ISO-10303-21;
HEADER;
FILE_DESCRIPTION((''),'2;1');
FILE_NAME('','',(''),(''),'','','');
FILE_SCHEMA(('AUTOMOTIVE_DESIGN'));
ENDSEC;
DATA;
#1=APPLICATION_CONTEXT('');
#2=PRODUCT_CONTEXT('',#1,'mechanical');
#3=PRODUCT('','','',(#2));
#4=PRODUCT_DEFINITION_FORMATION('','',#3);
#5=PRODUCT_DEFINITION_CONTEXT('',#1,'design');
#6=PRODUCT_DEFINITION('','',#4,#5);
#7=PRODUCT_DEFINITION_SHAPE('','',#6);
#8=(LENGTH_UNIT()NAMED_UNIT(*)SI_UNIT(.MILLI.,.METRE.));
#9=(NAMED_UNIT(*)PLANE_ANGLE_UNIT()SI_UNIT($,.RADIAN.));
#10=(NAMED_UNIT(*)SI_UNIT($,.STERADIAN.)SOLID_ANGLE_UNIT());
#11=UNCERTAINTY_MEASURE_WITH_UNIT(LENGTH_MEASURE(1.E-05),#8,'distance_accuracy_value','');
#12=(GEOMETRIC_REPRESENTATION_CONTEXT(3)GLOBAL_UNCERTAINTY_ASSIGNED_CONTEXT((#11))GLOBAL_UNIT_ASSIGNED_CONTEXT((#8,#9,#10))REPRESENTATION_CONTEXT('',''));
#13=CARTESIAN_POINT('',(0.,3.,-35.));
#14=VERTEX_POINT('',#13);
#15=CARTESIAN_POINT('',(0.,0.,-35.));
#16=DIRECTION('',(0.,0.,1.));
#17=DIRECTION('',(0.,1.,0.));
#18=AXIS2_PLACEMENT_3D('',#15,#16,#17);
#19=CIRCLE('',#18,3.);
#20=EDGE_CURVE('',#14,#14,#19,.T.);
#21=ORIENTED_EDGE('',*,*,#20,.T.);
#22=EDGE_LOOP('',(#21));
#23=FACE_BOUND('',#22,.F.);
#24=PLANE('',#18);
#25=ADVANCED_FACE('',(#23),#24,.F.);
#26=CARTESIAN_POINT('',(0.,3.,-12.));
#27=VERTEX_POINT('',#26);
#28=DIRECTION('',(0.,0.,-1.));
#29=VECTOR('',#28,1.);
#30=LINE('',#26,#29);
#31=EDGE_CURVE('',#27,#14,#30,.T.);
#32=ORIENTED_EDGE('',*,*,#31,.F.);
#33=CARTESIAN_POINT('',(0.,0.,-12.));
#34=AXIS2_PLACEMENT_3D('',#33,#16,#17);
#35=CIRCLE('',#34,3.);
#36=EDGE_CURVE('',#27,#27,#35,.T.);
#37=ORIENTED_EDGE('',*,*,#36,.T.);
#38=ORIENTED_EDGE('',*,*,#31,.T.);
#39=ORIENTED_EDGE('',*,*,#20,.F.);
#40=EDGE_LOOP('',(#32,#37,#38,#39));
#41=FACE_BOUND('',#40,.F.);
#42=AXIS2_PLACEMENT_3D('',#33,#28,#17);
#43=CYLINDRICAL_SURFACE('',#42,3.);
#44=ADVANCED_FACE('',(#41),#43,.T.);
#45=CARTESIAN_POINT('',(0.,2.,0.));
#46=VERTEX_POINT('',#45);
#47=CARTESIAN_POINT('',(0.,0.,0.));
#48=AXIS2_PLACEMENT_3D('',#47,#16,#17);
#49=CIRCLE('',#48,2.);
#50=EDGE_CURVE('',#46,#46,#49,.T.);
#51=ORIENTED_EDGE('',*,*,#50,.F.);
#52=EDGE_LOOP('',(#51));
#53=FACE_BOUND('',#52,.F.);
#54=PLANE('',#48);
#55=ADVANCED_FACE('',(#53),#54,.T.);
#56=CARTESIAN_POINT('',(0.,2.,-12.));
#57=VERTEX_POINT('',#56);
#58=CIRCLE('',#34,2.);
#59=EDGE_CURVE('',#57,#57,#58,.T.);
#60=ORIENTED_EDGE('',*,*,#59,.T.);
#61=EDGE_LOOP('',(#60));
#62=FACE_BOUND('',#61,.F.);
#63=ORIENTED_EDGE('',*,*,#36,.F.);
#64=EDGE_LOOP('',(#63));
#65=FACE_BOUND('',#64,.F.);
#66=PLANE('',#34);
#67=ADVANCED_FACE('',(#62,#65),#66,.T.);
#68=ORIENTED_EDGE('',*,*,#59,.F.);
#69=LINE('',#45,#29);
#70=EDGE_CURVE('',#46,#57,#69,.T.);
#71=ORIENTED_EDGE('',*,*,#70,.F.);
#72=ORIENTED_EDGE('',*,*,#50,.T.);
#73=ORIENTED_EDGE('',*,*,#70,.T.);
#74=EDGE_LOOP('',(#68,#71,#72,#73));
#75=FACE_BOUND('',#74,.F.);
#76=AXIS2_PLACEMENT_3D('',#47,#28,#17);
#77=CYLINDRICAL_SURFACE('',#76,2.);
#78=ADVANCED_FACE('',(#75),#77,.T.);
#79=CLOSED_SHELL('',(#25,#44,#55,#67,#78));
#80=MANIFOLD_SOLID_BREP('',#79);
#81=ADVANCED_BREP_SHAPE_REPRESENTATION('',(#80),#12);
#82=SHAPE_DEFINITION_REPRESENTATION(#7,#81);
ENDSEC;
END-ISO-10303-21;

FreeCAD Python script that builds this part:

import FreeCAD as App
import Part
import Sketcher

V = App.Vector

doc = App.newDocument("Part")
params = doc.addObject("Spreadsheet::Sheet", "Params")
for row, (alias, value) in enumerate([
    ("sketch1_width", "2 mm"),
    ("sketch1_width2", "1 mm"),
    ("sketch1_height", "23 mm"),
    ("sketch1_height2", "12 mm"),
    ("revolution_angle", "360 deg"),
], start=1):
    params.set(f"A{row}", alias)
    params.set(f"B{row}", "=" + value)
    params.setAlias(f"B{row}", alias)

body = doc.addObject("PartDesign::Body", "Body")

# Sketch on YZ plane
sketch1 = body.newObject("Sketcher::SketchObject", "Sketch")
sketch1.AttachmentSupport = (doc.getObject("YZ_Plane"), [""])
sketch1.MapMode = "FlatFace"
sketch1.addGeometry([
    Part.LineSegment(V(2, 0, 0), V(0, 0, 0)),  # 0
    Part.LineSegment(V(0, 0, 0), V(0, -35, 0)),  # 1
    Part.LineSegment(V(0, -35, 0), V(3, -35, 0)),  # 2
    Part.LineSegment(V(3, -35, 0), V(3, -12, 0)),  # 3
    Part.LineSegment(V(3, -12, 0), V(2, -12, 0)),  # 4
    Part.LineSegment(V(2, -12, 0), V(2, 0, 0)),  # 5
], False)
sketch1.addConstraint([
    Sketcher.Constraint("Coincident", 0, 2, 1, 1),
    Sketcher.Constraint("Coincident", 1, 2, 2, 1),
    Sketcher.Constraint("Coincident", 2, 2, 3, 1),
    Sketcher.Constraint("Coincident", 3, 2, 4, 1),
    Sketcher.Constraint("Coincident", 4, 2, 5, 1),
    Sketcher.Constraint("Coincident", 5, 2, 0, 1),
    Sketcher.Constraint("Horizontal", 0),
    Sketcher.Constraint("Vertical", 1),
    Sketcher.Constraint("Horizontal", 2),
    Sketcher.Constraint("Vertical", 3),
    Sketcher.Constraint("Horizontal", 4),
    Sketcher.Constraint("Vertical", 5),
    Sketcher.Constraint("Coincident", 0, 2, -1, 1),
    Sketcher.Constraint("DistanceX", 0, 2, 0, 1, 2.0),
    Sketcher.Constraint("DistanceX", 4, 2, 4, 1, 1.0),
    Sketcher.Constraint("DistanceY", 3, 1, 3, 2, 23.0),
    Sketcher.Constraint("DistanceY", 5, 1, 5, 2, 12.0),
])
sketch1.setExpression("Constraints[13]", "Params.sketch1_width")
sketch1.setExpression("Constraints[14]", "Params.sketch1_width2")
sketch1.setExpression("Constraints[15]", "Params.sketch1_height")
sketch1.setExpression("Constraints[16]", "Params.sketch1_height2")
revolution = body.newObject("PartDesign::Revolution", "Revolution")
revolution.Profile = sketch1
revolution.ReferenceAxis = (sketch1, ["V_Axis"])
revolution.setExpression("Angle", "Params.revolution_angle")

doc.recompute()
